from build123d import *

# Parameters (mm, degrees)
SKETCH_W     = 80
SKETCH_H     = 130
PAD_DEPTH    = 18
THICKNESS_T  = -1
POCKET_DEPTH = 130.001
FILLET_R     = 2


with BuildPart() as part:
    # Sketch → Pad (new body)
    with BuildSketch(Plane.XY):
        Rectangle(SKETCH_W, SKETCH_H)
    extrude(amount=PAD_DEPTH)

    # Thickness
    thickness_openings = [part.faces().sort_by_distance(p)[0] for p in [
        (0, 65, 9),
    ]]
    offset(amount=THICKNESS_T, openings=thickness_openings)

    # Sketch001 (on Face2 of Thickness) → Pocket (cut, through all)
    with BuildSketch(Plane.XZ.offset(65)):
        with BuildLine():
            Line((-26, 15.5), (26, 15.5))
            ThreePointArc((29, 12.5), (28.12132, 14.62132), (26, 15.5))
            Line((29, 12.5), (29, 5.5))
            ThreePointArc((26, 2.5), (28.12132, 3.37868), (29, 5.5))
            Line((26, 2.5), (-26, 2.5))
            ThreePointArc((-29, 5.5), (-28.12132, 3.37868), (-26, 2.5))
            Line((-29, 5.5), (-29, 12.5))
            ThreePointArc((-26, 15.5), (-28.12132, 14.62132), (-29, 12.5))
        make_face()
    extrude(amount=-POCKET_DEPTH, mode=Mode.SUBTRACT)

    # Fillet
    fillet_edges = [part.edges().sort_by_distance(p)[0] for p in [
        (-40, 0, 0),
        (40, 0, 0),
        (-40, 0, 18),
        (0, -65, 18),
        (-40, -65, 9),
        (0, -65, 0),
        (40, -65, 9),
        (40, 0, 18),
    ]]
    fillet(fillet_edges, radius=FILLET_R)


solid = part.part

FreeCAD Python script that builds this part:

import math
import FreeCAD as App
import Part
import Sketcher
from FreeCAD import Vector


def edges_at(feature, points):
    """Names of the edges that pass closest to the given points."""
    edges = feature.Shape.Edges
    near = lambda p: min(range(len(edges)), key=lambda i: edges[i].distToShape(Part.Vertex(*p))[0])
    return sorted({f"Edge{near(p) + 1}" for p in points})


def faces_at(feature, points):
    """Names of the faces that lie closest to the given points."""
    faces = feature.Shape.Faces
    near = lambda p: min(range(len(faces)), key=lambda i: faces[i].distToShape(Part.Vertex(*p))[0])
    return sorted({f"Face{near(p) + 1}" for p in points})

doc = App.newDocument("Part")
params = doc.addObject("Spreadsheet::Sheet", "Params")
for row, (alias, value) in enumerate([
    ("sketch1_width", "80 mm"),
    ("sketch1_height", "130 mm"),
    ("pad1_length", "18 mm"),
    ("thickness_wall", "1 mm"),
    ("sketch2_radius", "3.000001 mm"),
    ("sketch2_width", "52 mm"),
    ("sketch2_height", "7 mm"),
    ("fillet_radius", "2 mm"),
], start=1):
    params.set(f"A{row}", alias)
    params.set(f"B{row}", "=" + value)
    params.setAlias(f"B{row}", alias)

body = doc.addObject("PartDesign::Body", "Body")

sketch1 = body.newObject("Sketcher::SketchObject", "Sketch")
sketch1.AttachmentSupport = (doc.getObject("XY_Plane"), [""])
sketch1.MapMode = "FlatFace"
sketch1.addGeometry([
    Part.LineSegment(Vector(-40, 65, 0), Vector(-40, -65, 0)),
    Part.LineSegment(Vector(-40, -65, 0), Vector(40, -65, 0)),
    Part.LineSegment(Vector(40, -65, 0), Vector(40, 65, 0)),
    Part.LineSegment(Vector(40, 65, 0), Vector(-40, 65, 0)),
], False)
sketch1.addConstraint([
    Sketcher.Constraint("Coincident", 0, 2, 1, 1),
    Sketcher.Constraint("Coincident", 1, 2, 2, 1),
    Sketcher.Constraint("Coincident", 2, 2, 3, 1),
    Sketcher.Constraint("Coincident", 3, 2, 0, 1),
    Sketcher.Constraint("Vertical", 0),
    Sketcher.Constraint("Horizontal", 1),
    Sketcher.Constraint("Vertical", 2),
    Sketcher.Constraint("Horizontal", 3),
    Sketcher.Constraint("Symmetric", 0, 2, 2, 2, -1, 1),
    Sketcher.Constraint("DistanceX", 1, 1, 1, 2, 80.0),
    Sketcher.Constraint("DistanceY", 0, 2, 0, 1, 130.0),
])
sketch1.setExpression("Constraints[9]", "Params.sketch1_width")
sketch1.setExpression("Constraints[10]", "Params.sketch1_height")
pad1 = body.newObject("PartDesign::Pad", "Pad")
pad1.Profile = sketch1
pad1.setExpression("Length", "Params.pad1_length")
doc.recompute()

thickness = body.newObject("PartDesign::Thickness", "Thickness")
thickness.Base = (pad1, faces_at(pad1, [(0, 65, 9)]))
thickness.setExpression("Value", "Params.thickness_wall")
thickness.Reversed = True
thickness.Join = "Arc"

sketch2 = body.newObject("Sketcher::SketchObject", "Sketch001")
sketch2.AttachmentSupport = (doc.getObject("XZ_Plane"), [""])
sketch2.MapMode = "FlatFace"
sketch2.AttachmentOffset = App.Placement(Vector(0, 0, 65), App.Rotation())
sketch2.addGeometry([
    Part.LineSegment(Vector(26, 15.5, 0), Vector(-26, 15.5, 0)),
    Part.ArcOfCircle(Part.Circle(Vector(-26, 12.5, 0), Vector(0, 0, 1), 3), math.radians(90), math.radians(180)),
    Part.LineSegment(Vector(-29, 12.5, 0), Vector(-29, 5.5, 0)),
    Part.ArcOfCircle(Part.Circle(Vector(-26, 5.5, 0), Vector(0, 0, 1), 3), math.radians(-180), math.radians(-90)),
    Part.LineSegment(Vector(-26, 2.5, 0), Vector(26, 2.5, 0)),
    Part.ArcOfCircle(Part.Circle(Vector(26, 5.5, 0), Vector(0, 0, 1), 3), math.radians(-90), math.radians(0)),
    Part.LineSegment(Vector(29, 5.5, 0), Vector(29, 12.5, 0)),
    Part.ArcOfCircle(Part.Circle(Vector(26, 12.5, 0), Vector(0, 0, 1), 3), math.radians(0), math.radians(90)),
], False)
sketch2.addConstraint([
    Sketcher.Constraint("Tangent", 0, 2, 1, 1),
    Sketcher.Constraint("Tangent", 1, 2, 2, 1),
    Sketcher.Constraint("Tangent", 2, 2, 3, 1),
    Sketcher.Constraint("Tangent", 3, 2, 4, 1),
    Sketcher.Constraint("Tangent", 4, 2, 5, 1),
    Sketcher.Constraint("Tangent", 5, 2, 6, 1),
    Sketcher.Constraint("Tangent", 6, 2, 7, 1),
    Sketcher.Constraint("Tangent", 7, 2, 0, 1),
    Sketcher.Constraint("Horizontal", 0),
    Sketcher.Constraint("Vertical", 2),
    Sketcher.Constraint("Horizontal", 4),
    Sketcher.Constraint("Vertical", 6),
    Sketcher.Constraint("Equal", 1, 3),
    Sketcher.Constraint("Equal", 3, 5),
    Sketcher.Constraint("Equal", 5, 7),
    Sketcher.Constraint("Radius", 1, 3.000001),
    Sketcher.Constraint("DistanceX", 0, 2, 0, 1, 52.0),
    Sketcher.Constraint("DistanceY", 2, 2, 2, 1, 7.0),
    Sketcher.Constraint("DistanceX", 1, 3, -1, 1, 25.999999),
    Sketcher.Constraint("DistanceY", -1, 1, 1, 3, 12.499999),
])
sketch2.setExpression("Constraints[15]", "Params.sketch2_radius")
sketch2.setExpression("Constraints[16]", "Params.sketch2_width")
sketch2.setExpression("Constraints[17]", "Params.sketch2_height")
pocket1 = body.newObject("PartDesign::Pocket", "Pocket")
pocket1.Profile = sketch2
pocket1.Type = "ThroughAll"
doc.recompute()

fillet = body.newObject("PartDesign::Fillet", "Fillet")
fillet.Base = (pocket1, edges_at(pocket1, [
    (-40, 0, 0),
    (40, 0, 0),
    (-40, 0, 18),
    (0, -65, 18),
    (-40, -65, 9),
    (0, -65, 0),
    (40, -65, 9),
    (40, 0, 18),
]))
fillet.setExpression("Radius", "Params.fillet_radius")

doc.recompute()
